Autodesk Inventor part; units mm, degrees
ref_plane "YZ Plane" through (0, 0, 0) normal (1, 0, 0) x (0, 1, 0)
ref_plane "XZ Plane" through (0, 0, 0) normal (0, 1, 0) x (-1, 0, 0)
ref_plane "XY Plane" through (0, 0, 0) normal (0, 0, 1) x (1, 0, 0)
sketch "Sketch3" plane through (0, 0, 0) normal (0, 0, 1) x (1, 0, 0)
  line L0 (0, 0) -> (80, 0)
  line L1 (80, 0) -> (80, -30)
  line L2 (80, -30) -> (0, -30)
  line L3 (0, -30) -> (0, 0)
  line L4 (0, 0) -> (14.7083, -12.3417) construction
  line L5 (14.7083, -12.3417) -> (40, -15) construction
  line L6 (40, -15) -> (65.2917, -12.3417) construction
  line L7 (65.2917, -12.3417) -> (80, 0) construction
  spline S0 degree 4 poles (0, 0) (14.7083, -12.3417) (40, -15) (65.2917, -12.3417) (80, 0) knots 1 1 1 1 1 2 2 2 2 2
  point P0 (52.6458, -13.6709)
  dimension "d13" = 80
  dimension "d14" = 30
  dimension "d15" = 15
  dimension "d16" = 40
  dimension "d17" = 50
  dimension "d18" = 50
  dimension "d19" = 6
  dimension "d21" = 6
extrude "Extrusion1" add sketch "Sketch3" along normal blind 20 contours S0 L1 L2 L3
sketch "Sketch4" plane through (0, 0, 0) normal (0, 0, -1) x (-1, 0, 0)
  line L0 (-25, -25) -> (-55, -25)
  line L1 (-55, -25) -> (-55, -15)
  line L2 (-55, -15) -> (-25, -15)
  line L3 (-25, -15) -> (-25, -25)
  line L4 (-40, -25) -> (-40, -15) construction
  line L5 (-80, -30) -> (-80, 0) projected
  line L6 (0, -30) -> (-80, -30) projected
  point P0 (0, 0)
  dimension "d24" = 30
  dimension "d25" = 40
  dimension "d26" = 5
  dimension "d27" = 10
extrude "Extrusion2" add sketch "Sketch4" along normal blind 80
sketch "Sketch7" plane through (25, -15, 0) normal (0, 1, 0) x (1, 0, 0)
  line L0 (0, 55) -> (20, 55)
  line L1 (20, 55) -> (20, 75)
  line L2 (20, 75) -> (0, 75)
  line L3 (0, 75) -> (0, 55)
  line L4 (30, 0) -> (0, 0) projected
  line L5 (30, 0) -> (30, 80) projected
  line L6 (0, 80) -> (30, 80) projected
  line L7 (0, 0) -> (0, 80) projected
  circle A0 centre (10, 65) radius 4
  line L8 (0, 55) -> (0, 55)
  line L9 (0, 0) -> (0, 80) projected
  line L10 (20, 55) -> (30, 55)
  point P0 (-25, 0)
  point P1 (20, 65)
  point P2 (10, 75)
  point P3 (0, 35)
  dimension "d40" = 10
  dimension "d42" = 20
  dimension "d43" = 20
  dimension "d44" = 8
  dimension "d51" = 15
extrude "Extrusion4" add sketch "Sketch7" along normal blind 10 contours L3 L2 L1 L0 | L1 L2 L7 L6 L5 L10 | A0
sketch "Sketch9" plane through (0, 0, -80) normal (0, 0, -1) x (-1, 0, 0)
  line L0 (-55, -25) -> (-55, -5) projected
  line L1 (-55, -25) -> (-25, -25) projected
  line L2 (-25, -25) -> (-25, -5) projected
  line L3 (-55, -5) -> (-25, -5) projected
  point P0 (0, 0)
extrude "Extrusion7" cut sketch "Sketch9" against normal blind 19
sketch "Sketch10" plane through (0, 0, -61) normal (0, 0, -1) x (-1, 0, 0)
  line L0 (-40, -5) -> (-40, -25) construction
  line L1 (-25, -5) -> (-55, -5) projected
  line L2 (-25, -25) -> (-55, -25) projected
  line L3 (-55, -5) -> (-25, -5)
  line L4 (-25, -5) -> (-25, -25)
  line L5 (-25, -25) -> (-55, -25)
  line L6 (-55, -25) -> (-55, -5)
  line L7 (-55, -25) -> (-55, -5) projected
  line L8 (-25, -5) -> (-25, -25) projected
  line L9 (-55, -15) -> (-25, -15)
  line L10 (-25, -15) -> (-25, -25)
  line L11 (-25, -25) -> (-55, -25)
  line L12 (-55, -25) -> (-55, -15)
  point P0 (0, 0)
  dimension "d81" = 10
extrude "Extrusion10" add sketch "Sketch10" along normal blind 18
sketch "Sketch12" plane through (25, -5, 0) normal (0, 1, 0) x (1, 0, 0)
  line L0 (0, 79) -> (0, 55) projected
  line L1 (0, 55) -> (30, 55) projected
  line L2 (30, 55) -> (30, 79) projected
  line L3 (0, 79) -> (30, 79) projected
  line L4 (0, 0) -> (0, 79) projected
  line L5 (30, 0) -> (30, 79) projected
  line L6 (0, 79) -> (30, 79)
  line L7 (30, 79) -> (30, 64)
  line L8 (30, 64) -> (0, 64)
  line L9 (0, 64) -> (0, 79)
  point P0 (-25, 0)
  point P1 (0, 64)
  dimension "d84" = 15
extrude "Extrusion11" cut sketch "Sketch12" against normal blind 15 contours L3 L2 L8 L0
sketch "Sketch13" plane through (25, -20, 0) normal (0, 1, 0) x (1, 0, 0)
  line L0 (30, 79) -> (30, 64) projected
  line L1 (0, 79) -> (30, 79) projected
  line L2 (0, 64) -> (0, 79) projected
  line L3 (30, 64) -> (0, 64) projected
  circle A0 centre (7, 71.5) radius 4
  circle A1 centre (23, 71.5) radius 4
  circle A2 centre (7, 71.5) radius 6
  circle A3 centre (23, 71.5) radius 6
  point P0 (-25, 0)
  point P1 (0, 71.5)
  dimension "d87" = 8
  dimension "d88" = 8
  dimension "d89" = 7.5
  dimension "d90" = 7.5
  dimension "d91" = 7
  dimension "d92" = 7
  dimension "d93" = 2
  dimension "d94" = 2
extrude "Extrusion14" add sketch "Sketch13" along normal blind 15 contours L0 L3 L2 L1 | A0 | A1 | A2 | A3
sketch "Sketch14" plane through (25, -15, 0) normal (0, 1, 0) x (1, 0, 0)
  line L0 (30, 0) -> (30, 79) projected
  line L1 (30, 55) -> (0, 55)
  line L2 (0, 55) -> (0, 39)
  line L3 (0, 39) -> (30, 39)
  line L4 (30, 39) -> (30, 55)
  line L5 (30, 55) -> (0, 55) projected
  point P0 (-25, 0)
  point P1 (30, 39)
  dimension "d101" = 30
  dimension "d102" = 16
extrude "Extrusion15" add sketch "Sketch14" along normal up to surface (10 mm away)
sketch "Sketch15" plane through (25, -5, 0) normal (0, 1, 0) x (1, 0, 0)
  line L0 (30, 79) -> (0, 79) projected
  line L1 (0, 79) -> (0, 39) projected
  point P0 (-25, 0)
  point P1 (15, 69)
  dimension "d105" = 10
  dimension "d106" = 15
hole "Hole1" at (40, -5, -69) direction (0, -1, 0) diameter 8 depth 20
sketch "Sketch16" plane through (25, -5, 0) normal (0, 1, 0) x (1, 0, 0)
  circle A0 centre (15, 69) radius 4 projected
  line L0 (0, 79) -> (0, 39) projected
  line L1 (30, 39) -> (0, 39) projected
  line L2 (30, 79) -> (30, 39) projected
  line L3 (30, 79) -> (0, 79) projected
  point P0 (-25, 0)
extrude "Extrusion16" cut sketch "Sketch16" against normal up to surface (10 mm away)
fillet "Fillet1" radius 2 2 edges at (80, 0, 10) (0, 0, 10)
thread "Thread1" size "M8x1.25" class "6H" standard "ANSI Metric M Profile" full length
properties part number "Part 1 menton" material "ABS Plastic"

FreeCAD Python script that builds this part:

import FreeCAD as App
import Part
import Sketcher
from FreeCAD import Vector


def edges_at(feature, points):
    """Names of the edges that pass closest to the given points."""
    edges = feature.Shape.Edges
    near = lambda p: min(range(len(edges)), key=lambda i: edges[i].distToShape(Part.Vertex(*p))[0])
    return sorted({f"Edge{near(p) + 1}" for p in points})

doc = App.newDocument("Part")
params = doc.addObject("Spreadsheet::Sheet", "Params")
for row, (alias, value) in enumerate([
    ("sketch1_height", "30 mm"),
    ("pad1_length", "20 mm"),
    ("sketch2_width", "30 mm"),
    ("sketch2_height", "10 mm"),
    ("pad2_length", "80 mm"),
    ("sketch3_width", "30 mm"),
    ("sketch3_height", "25 mm"),
    ("pad3_length", "10 mm"),
    ("sketch4_width", "30 mm"),
    ("sketch4_height", "20 mm"),
    ("pocket1_length", "19 mm"),
    ("sketch5_width", "30 mm"),
    ("sketch5_height", "20 mm"),
    ("pad4_length", "18 mm"),
    ("sketch6_height", "15 mm"),
    ("sketch6_width", "30 mm"),
    ("pocket2_length", "15 mm"),
    ("sketch7_width", "30 mm"),
    ("sketch7_height", "15 mm"),
    ("pad5_length", "15 mm"),
    ("sketch8_width", "30 mm"),
    ("sketch8_height", "16 mm"),
    ("pad6_length", "10 mm"),
    ("sketch9_diameter", "8 mm"),
    ("hole_diameter", "8 mm"),
    ("hole_depth", "20 mm"),
    ("sketch10_diameter", "8 mm"),
    ("sketch10_width", "30 mm"),
    ("sketch10_height", "40 mm"),
    ("pocket3_length", "10 mm"),
    ("fillet_radius", "2 mm"),
], start=1):
    params.set(f"A{row}", alias)
    params.set(f"B{row}", "=" + value)
    params.setAlias(f"B{row}", alias)

body = doc.addObject("PartDesign::Body", "Body")

# Sketch on XY plane
sketch1 = body.newObject("Sketcher::SketchObject", "Sketch")
sketch1.AttachmentSupport = (doc.getObject("XY_Plane"), [""])
sketch1.MapMode = "FlatFace"
sketch1.addGeometry(Part.BSplineCurve([Vector(0, 0, 0), Vector(14.7083, -12.3417, 0), Vector(40, -15, 0), Vector(65.2917, -12.3417, 0), Vector(80, 0, 0)], [5, 5], [1, 2], False, 4, [1, 1, 1, 1, 1], False), False)
sketch1.addGeometry(Part.LineSegment(Vector(0, 0, 0), Vector(0, -30, 0)), False)
sketch1.addGeometry(Part.LineSegment(Vector(0, -30, 0), Vector(80, -30, 0)), False)
sketch1.addGeometry(Part.LineSegment(Vector(80, -30, 0), Vector(80, 0, 0)), False)
sketch1.addConstraint(Sketcher.Constraint("Block", 0))
sketch1.addConstraint(Sketcher.Constraint("Coincident", 0, 1, 1, 1))
sketch1.addConstraint(Sketcher.Constraint("Coincident", 1, 2, 2, 1))
sketch1.addConstraint(Sketcher.Constraint("Coincident", 2, 2, 3, 1))
sketch1.addConstraint(Sketcher.Constraint("Coincident", 3, 2, 0, 2))
sketch1.addConstraint(Sketcher.Constraint("Vertical", 1))
sketch1.addConstraint(Sketcher.Constraint("Horizontal", 2))
sketch1.addConstraint(Sketcher.Constraint("Vertical", 3))
sketch1.addConstraint(Sketcher.Constraint("DistanceY", 1, 2, 1, 1, 30.0))
sketch1.setExpression("Constraints[8]", "Params.sketch1_height")
pad1 = body.newObject("PartDesign::Pad", "Pad")
pad1.Profile = sketch1
pad1.setExpression("Length", "Params.pad1_length")

# Sketch on XY plane
sketch2 = body.newObject("Sketcher::SketchObject", "Sketch001")
sketch2.AttachmentSupport = (doc.getObject("XY_Plane"), [""])
sketch2.MapMode = "FlatFace"
sketch2.addGeometry(Part.LineSegment(Vector(55, -25, 0), Vector(25, -25, 0)), False)
sketch2.addGeometry(Part.LineSegment(Vector(25, -25, 0), Vector(25, -15, 0)), False)
sketch2.addGeometry(Part.LineSegment(Vector(25, -15, 0), Vector(55, -15, 0)), False)
sketch2.addGeometry(Part.LineSegment(Vector(55, -15, 0), Vector(55, -25, 0)), False)
sketch2.addConstraint(Sketcher.Constraint("Coincident", 0, 2, 1, 1))
sketch2.addConstraint(Sketcher.Constraint("Coincident", 1, 2, 2, 1))
sketch2.addConstraint(Sketcher.Constraint("Coincident", 2, 2, 3, 1))
sketch2.addConstraint(Sketcher.Constraint("Coincident", 3, 2, 0, 1))
sketch2.addConstraint(Sketcher.Constraint("Horizontal", 0))
sketch2.addConstraint(Sketcher.Constraint("Vertical", 1))
sketch2.addConstraint(Sketcher.Constraint("Horizontal", 2))
sketch2.addConstraint(Sketcher.Constraint("Vertical", 3))
sketch2.addConstraint(Sketcher.Constraint("DistanceX", 0, 2, 0, 1, 30.0))
sketch2.addConstraint(Sketcher.Constraint("DistanceY", 1, 1, 1, 2, 10.0))
sketch2.addConstraint(Sketcher.Constraint("DistanceX", -1, 1, 0, 2, 25.0))
sketch2.addConstraint(Sketcher.Constraint("DistanceY", 0, 2, -1, 1, 25.0))
sketch2.setExpression("Constraints[8]", "Params.sketch2_width")
sketch2.setExpression("Constraints[9]", "Params.sketch2_height")
pad2 = body.newObject("PartDesign::Pad", "Pad001")
pad2.Profile = sketch2
pad2.setExpression("Length", "Params.pad2_length")
pad2.Reversed = True

# Sketch on XZ plane
sketch3 = body.newObject("Sketcher::SketchObject", "Sketch002")
sketch3.AttachmentSupport = (doc.getObject("XZ_Plane"), [""])
sketch3.MapMode = "FlatFace"
sketch3.AttachmentOffset = App.Placement(Vector(0, 0, 15), App.Rotation())
sketch3.addGeometry(Part.LineSegment(Vector(25, -55, 0), Vector(55, -55, 0)), False)
sketch3.addGeometry(Part.LineSegment(Vector(55, -55, 0), Vector(55, -80, 0)), False)
sketch3.addGeometry(Part.LineSegment(Vector(55, -80, 0), Vector(25, -80, 0)), False)
sketch3.addGeometry(Part.LineSegment(Vector(25, -80, 0), Vector(25, -55, 0)), False)
sketch3.addConstraint(Sketcher.Constraint("Coincident", 0, 2, 1, 1))
sketch3.addConstraint(Sketcher.Constraint("Coincident", 1, 2, 2, 1))
sketch3.addConstraint(Sketcher.Constraint("Coincident", 2, 2, 3, 1))
sketch3.addConstraint(Sketcher.Constraint("Coincident", 3, 2, 0, 1))
sketch3.addConstraint(Sketcher.Constraint("Horizontal", 0))
sketch3.addConstraint(Sketcher.Constraint("Vertical", 1))
sketch3.addConstraint(Sketcher.Constraint("Horizontal", 2))
sketch3.addConstraint(Sketcher.Constraint("Vertical", 3))
sketch3.addConstraint(Sketcher.Constraint("DistanceX", 0, 1, 0, 2, 30.0))
sketch3.addConstraint(Sketcher.Constraint("DistanceY", 1, 2, 1, 1, 25.0))
sketch3.addConstraint(Sketcher.Constraint("DistanceX", -1, 1, 0, 2, 55.0))
sketch3.addConstraint(Sketcher.Constraint("DistanceY", 0, 2, -1, 1, 55.0))
sketch3.setExpression("Constraints[8]", "Params.sketch3_width")
sketch3.setExpression("Constraints[9]", "Params.sketch3_height")
pad3 = body.newObject("PartDesign::Pad", "Pad002")
pad3.Profile = sketch3
pad3.setExpression("Length", "Params.pad3_length")
pad3.Reversed = True

# Sketch on XY plane
sketch4 = body.newObject("Sketcher::SketchObject", "Sketch003")
sketch4.AttachmentSupport = (doc.getObject("XY_Plane"), [""])
sketch4.MapMode = "FlatFace"
sketch4.AttachmentOffset = App.Placement(Vector(0, 0, -80), App.Rotation())
sketch4.addGeometry(Part.LineSegment(Vector(55, -5, 0), Vector(55, -25, 0)), False)
sketch4.addGeometry(Part.LineSegment(Vector(55, -25, 0), Vector(25, -25, 0)), False)
sketch4.addGeometry(Part.LineSegment(Vector(25, -25, 0), Vector(25, -5, 0)), False)
sketch4.addGeometry(Part.LineSegment(Vector(25, -5, 0), Vector(55, -5, 0)), False)
sketch4.addConstraint(Sketcher.Constraint("Coincident", 0, 2, 1, 1))
sketch4.addConstraint(Sketcher.Constraint("Coincident", 1, 2, 2, 1))
sketch4.addConstraint(Sketcher.Constraint("Coincident", 2, 2, 3, 1))
sketch4.addConstraint(Sketcher.Constraint("Coincident", 3, 2, 0, 1))
sketch4.addConstraint(Sketcher.Constraint("Vertical", 0))
sketch4.addConstraint(Sketcher.Constraint("Horizontal", 1))
sketch4.addConstraint(Sketcher.Constraint("Vertical", 2))
sketch4.addConstraint(Sketcher.Constraint("Horizontal", 3))
sketch4.addConstraint(Sketcher.Constraint("DistanceX", 1, 2, 1, 1, 30.0))
sketch4.addConstraint(Sketcher.Constraint("DistanceY", 0, 2, 0, 1, 20.0))
sketch4.addConstraint(Sketcher.Constraint("DistanceX", -1, 1, 0, 2, 55.0))
sketch4.addConstraint(Sketcher.Constraint("DistanceY", 0, 2, -1, 1, 25.0))
sketch4.setExpression("Constraints[8]", "Params.sketch4_width")
sketch4.setExpression("Constraints[9]", "Params.sketch4_height")
pocket1 = body.newObject("PartDesign::Pocket", "Pocket")
pocket1.Profile = sketch4
pocket1.setExpression("Length", "Params.pocket1_length")
pocket1.Reversed = True

# Sketch on XY plane
sketch5 = body.newObject("Sketcher::SketchObject", "Sketch004")
sketch5.AttachmentSupport = (doc.getObject("XY_Plane"), [""])
sketch5.MapMode = "FlatFace"
sketch5.AttachmentOffset = App.Placement(Vector(0, 0, -61), App.Rotation())
sketch5.addGeometry(Part.LineSegment(Vector(25, -5, 0), Vector(55, -5, 0)), False)
sketch5.addGeometry(Part.LineSegment(Vector(55, -5, 0), Vector(55, -25, 0)), False)
sketch5.addGeometry(Part.LineSegment(Vector(55, -25, 0), Vector(25, -25, 0)), False)
sketch5.addGeometry(Part.LineSegment(Vector(25, -25, 0), Vector(25, -5, 0)), False)
sketch5.addConstraint(Sketcher.Constraint("Coincident", 0, 2, 1, 1))
sketch5.addConstraint(Sketcher.Constraint("Coincident", 1, 2, 2, 1))
sketch5.addConstraint(Sketcher.Constraint("Coincident", 2, 2, 3, 1))
sketch5.addConstraint(Sketcher.Constraint("Coincident", 3, 2, 0, 1))
sketch5.addConstraint(Sketcher.Constraint("Horizontal", 0))
sketch5.addConstraint(Sketcher.Constraint("Vertical", 1))
sketch5.addConstraint(Sketcher.Constraint("Horizontal", 2))
sketch5.addConstraint(Sketcher.Constraint("Vertical", 3))
sketch5.addConstraint(Sketcher.Constraint("DistanceX", 0, 1, 0, 2, 30.0))
sketch5.addConstraint(Sketcher.Constraint("DistanceY", 1, 2, 1, 1, 20.0))
sketch5.addConstraint(Sketcher.Constraint("DistanceX", -1, 1, 0, 2, 55.0))
sketch5.addConstraint(Sketcher.Constraint("DistanceY", 0, 2, -1, 1, 5.0))
sketch5.setExpression("Constraints[8]", "Params.sketch5_width")
sketch5.setExpression("Constraints[9]", "Params.sketch5_height")
pad4 = body.newObject("PartDesign::Pad", "Pad003")
pad4.Profile = sketch5
pad4.setExpression("Length", "Params.pad4_length")
pad4.Reversed = True

# Sketch on XZ plane
sketch6 = body.newObject("Sketcher::SketchObject", "Sketch005")
sketch6.AttachmentSupport = (doc.getObject("XZ_Plane"), [""])
sketch6.MapMode = "FlatFace"
sketch6.AttachmentOffset = App.Placement(Vector(0, 0, 5), App.Rotation())
sketch6.addGeometry(Part.LineSegment(Vector(55, -79, 0), Vector(25, -79, 0)), False)
sketch6.addGeometry(Part.LineSegment(Vector(25, -79, 0), Vector(25, -64, 0)), False)
sketch6.addGeometry(Part.LineSegment(Vector(25, -64, 0), Vector(55, -64, 0)), False)
sketch6.addGeometry(Part.LineSegment(Vector(55, -64, 0), Vector(55, -79, 0)), False)
sketch6.addConstraint(Sketcher.Constraint("Coincident", 0, 2, 1, 1))
sketch6.addConstraint(Sketcher.Constraint("Coincident", 1, 2, 2, 1))
sketch6.addConstraint(Sketcher.Constraint("Coincident", 2, 2, 3, 1))
sketch6.addConstraint(Sketcher.Constraint("Coincident", 3, 2, 0, 1))
sketch6.addConstraint(Sketcher.Constraint("Horizontal", 0))
sketch6.addConstraint(Sketcher.Constraint("Vertical", 1))
sketch6.addConstraint(Sketcher.Constraint("Horizontal", 2))
sketch6.addConstraint(Sketcher.Constraint("Vertical", 3))
sketch6.addConstraint(Sketcher.Constraint("DistanceY", 1, 1, 1, 2, 15.0))
sketch6.addConstraint(Sketcher.Constraint("DistanceX", 0, 2, 0, 1, 30.0))
sketch6.addConstraint(Sketcher.Constraint("DistanceX", -1, 1, 0, 2, 25.0))
sketch6.addConstraint(Sketcher.Constraint("DistanceY", 0, 2, -1, 1, 79.0))
sketch6.setExpression("Constraints[8]", "Params.sketch6_height")
sketch6.setExpression("Constraints[9]", "Params.sketch6_width")
pocket2 = body.newObject("PartDesign::Pocket", "Pocket001")
pocket2.Profile = sketch6
pocket2.setExpression("Length", "Params.pocket2_length")
pocket2.Reversed = True

# Sketch on XZ plane
sketch7 = body.newObject("Sketcher::SketchObject", "Sketch006")
sketch7.AttachmentSupport = (doc.getObject("XZ_Plane"), [""])
sketch7.MapMode = "FlatFace"
sketch7.AttachmentOffset = App.Placement(Vector(0, 0, 20), App.Rotation())
sketch7.addGeometry(Part.LineSegment(Vector(55, -64, 0), Vector(55, -79, 0)), False)
sketch7.addGeometry(Part.LineSegment(Vector(55, -79, 0), Vector(25, -79, 0)), False)
sketch7.addGeometry(Part.LineSegment(Vector(25, -79, 0), Vector(25, -64, 0)), False)
sketch7.addGeometry(Part.LineSegment(Vector(25, -64, 0), Vector(55, -64, 0)), False)
sketch7.addConstraint(Sketcher.Constraint("Coincident", 0, 2, 1, 1))
sketch7.addConstraint(Sketcher.Constraint("Coincident", 1, 2, 2, 1))
sketch7.addConstraint(Sketcher.Constraint("Coincident", 2, 2, 3, 1))
sketch7.addConstraint(Sketcher.Constraint("Coincident", 3, 2, 0, 1))
sketch7.addConstraint(Sketcher.Constraint("Vertical", 0))
sketch7.addConstraint(Sketcher.Constraint("Horizontal", 1))
sketch7.addConstraint(Sketcher.Constraint("Vertical", 2))
sketch7.addConstraint(Sketcher.Constraint("Horizontal", 3))
sketch7.addConstraint(Sketcher.Constraint("DistanceX", 1, 2, 1, 1, 30.0))
sketch7.addConstraint(Sketcher.Constraint("DistanceY", 0, 2, 0, 1, 15.0))
sketch7.addConstraint(Sketcher.Constraint("DistanceX", -1, 1, 0, 2, 55.0))
sketch7.addConstraint(Sketcher.Constraint("DistanceY", 0, 2, -1, 1, 79.0))
sketch7.setExpression("Constraints[8]", "Params.sketch7_width")
sketch7.setExpression("Constraints[9]", "Params.sketch7_height")
pad5 = body.newObject("PartDesign::Pad", "Pad004")
pad5.Profile = sketch7
pad5.setExpression("Length", "Params.pad5_length")
pad5.Reversed = True

# Sketch on XZ plane
sketch8 = body.newObject("Sketcher::SketchObject", "Sketch007")
sketch8.AttachmentSupport = (doc.getObject("XZ_Plane"), [""])
sketch8.MapMode = "FlatFace"
sketch8.AttachmentOffset = App.Placement(Vector(0, 0, 15), App.Rotation())
sketch8.addGeometry(Part.LineSegment(Vector(25, -39, 0), Vector(55, -39, 0)), False)
sketch8.addGeometry(Part.LineSegment(Vector(55, -39, 0), Vector(55, -55, 0)), False)
sketch8.addGeometry(Part.LineSegment(Vector(55, -55, 0), Vector(25, -55, 0)), False)
sketch8.addGeometry(Part.LineSegment(Vector(25, -55, 0), Vector(25, -39, 0)), False)
sketch8.addConstraint(Sketcher.Constraint("Coincident", 0, 2, 1, 1))
sketch8.addConstraint(Sketcher.Constraint("Coincident", 1, 2, 2, 1))
sketch8.addConstraint(Sketcher.Constraint("Coincident", 2, 2, 3, 1))
sketch8.addConstraint(Sketcher.Constraint("Coincident", 3, 2, 0, 1))
sketch8.addConstraint(Sketcher.Constraint("Horizontal", 0))
sketch8.addConstraint(Sketcher.Constraint("Vertical", 1))
sketch8.addConstraint(Sketcher.Constraint("Horizontal", 2))
sketch8.addConstraint(Sketcher.Constraint("Vertical", 3))
sketch8.addConstraint(Sketcher.Constraint("DistanceX", 0, 1, 0, 2, 30.0))
sketch8.addConstraint(Sketcher.Constraint("DistanceY", 1, 2, 1, 1, 16.0))
sketch8.addConstraint(Sketcher.Constraint("DistanceX", -1, 1, 0, 2, 55.0))
sketch8.addConstraint(Sketcher.Constraint("DistanceY", 0, 2, -1, 1, 39.0))
sketch8.setExpression("Constraints[8]", "Params.sketch8_width")
sketch8.setExpression("Constraints[9]", "Params.sketch8_height")
pad6 = body.newObject("PartDesign::Pad", "Pad005")
pad6.Profile = sketch8
pad6.setExpression("Length", "Params.pad6_length")
pad6.Reversed = True

# Sketch on XZ plane
sketch9 = body.newObject("Sketcher::SketchObject", "Sketch008")
sketch9.AttachmentSupport = (doc.getObject("XZ_Plane"), [""])
sketch9.MapMode = "FlatFace"
sketch9.AttachmentOffset = App.Placement(Vector(0, 0, 5), App.Rotation())
sketch9.addGeometry(Part.Circle(Vector(40, -69, 0), Vector(0, 0, 1), 4), False)
sketch9.addConstraint(Sketcher.Constraint("Diameter", 0, 8.0))
sketch9.addConstraint(Sketcher.Constraint("DistanceX", -1, 1, 0, 3, 40.0))
sketch9.addConstraint(Sketcher.Constraint("DistanceY", 0, 3, -1, 1, 69.0))
sketch9.setExpression("Constraints[0]", "Params.sketch9_diameter")
doc.recompute()
hole = body.newObject("PartDesign::Hole", "Hole")
hole.Profile = sketch9
hole.ThreadType = "None"
hole.setExpression("Diameter", "Params.hole_diameter")
hole.DepthType = "Dimension"
hole.setExpression("Depth", "Params.hole_depth")
hole.DrillPoint = "Flat"
hole.Reversed = True

# Sketch on XZ plane
sketch10 = body.newObject("Sketcher::SketchObject", "Sketch009")
sketch10.AttachmentSupport = (doc.getObject("XZ_Plane"), [""])
sketch10.MapMode = "FlatFace"
sketch10.AttachmentOffset = App.Placement(Vector(0, 0, 5), App.Rotation())
sketch10.addGeometry(Part.LineSegment(Vector(55, -79, 0), Vector(25, -79, 0)), False)
sketch10.addGeometry(Part.LineSegment(Vector(25, -79, 0), Vector(25, -39, 0)), False)
sketch10.addGeometry(Part.LineSegment(Vector(25, -39, 0), Vector(55, -39, 0)), False)
sketch10.addGeometry(Part.LineSegment(Vector(55, -39, 0), Vector(55, -79, 0)), False)
sketch10.addGeometry(Part.Circle(Vector(40, -69, 0), Vector(0, 0, 1), 4), False)
sketch10.addConstraint(Sketcher.Constraint("Coincident", 0, 2, 1, 1))
sketch10.addConstraint(Sketcher.Constraint("Coincident", 1, 2, 2, 1))
sketch10.addConstraint(Sketcher.Constraint("Coincident", 2, 2, 3, 1))
sketch10.addConstraint(Sketcher.Constraint("Coincident", 3, 2, 0, 1))
sketch10.addConstraint(Sketcher.Constraint("Horizontal", 0))
sketch10.addConstraint(Sketcher.Constraint("Vertical", 1))
sketch10.addConstraint(Sketcher.Constraint("Horizontal", 2))
sketch10.addConstraint(Sketcher.Constraint("Vertical", 3))
sketch10.addConstraint(Sketcher.Constraint("Diameter", 4, 8.0))
sketch10.addConstraint(Sketcher.Constraint("DistanceX", 0, 2, 0, 1, 30.0))
sketch10.addConstraint(Sketcher.Constraint("DistanceY", 1, 1, 1, 2, 40.0))
sketch10.addConstraint(Sketcher.Constraint("DistanceX", -1, 1, 4, 3, 40.0))
sketch10.addConstraint(Sketcher.Constraint("DistanceY", 4, 3, -1, 1, 69.0))
sketch10.addConstraint(Sketcher.Constraint("DistanceX", -1, 1, 0, 2, 25.0))
sketch10.addConstraint(Sketcher.Constraint("DistanceY", 0, 2, -1, 1, 79.0))
sketch10.setExpression("Constraints[8]", "Params.sketch10_diameter")
sketch10.setExpression("Constraints[9]", "Params.sketch10_width")
sketch10.setExpression("Constraints[10]", "Params.sketch10_height")
pocket3 = body.newObject("PartDesign::Pocket", "Pocket002")
pocket3.Profile = sketch10
pocket3.setExpression("Length", "Params.pocket3_length")
pocket3.Reversed = True
doc.recompute()

fillet = body.newObject("PartDesign::Fillet", "Fillet")
fillet.Base = (pocket3, edges_at(pocket3, [(80, 0, 10), (0, 0, 10)]))
fillet.setExpression("Radius", "Params.fillet_radius")

doc.recompute()
